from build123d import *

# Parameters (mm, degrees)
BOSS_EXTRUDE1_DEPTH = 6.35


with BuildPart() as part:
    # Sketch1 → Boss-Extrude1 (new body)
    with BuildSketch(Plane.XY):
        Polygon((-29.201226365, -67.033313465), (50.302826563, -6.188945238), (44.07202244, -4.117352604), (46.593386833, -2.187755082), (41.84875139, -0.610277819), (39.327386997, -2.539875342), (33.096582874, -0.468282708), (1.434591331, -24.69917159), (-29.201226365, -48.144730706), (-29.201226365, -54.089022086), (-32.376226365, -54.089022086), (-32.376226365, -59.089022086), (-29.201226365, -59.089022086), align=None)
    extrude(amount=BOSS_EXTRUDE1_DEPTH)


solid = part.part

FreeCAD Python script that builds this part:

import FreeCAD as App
import Part
import Sketcher
Q = App.Units.Quantity

doc = App.newDocument("Part")
body = doc.addObject("PartDesign::Body", "Body")

sketch1 = body.newObject("Sketcher::SketchObject", "Sketch")
sketch1.AttachmentSupport = (doc.getObject("XY_Plane"), [""])
sketch1.MapMode = "FlatFace"
sketch1.addGeometry([
    Part.LineSegment(App.Vector(-29.2, -67, 0), App.Vector(50.3, -6.2, 0)),
    Part.LineSegment(App.Vector(50.3, -6.2, 0), App.Vector(44.1, -4.1, 0)),
    Part.LineSegment(App.Vector(44.1, -4.1, 0), App.Vector(46.6, -2.2, 0)),
    Part.LineSegment(App.Vector(46.6, -2.2, 0), App.Vector(41.8, -0.6, 0)),
    Part.LineSegment(App.Vector(41.8, -0.6, 0), App.Vector(39.3, -2.5, 0)),
    Part.LineSegment(App.Vector(39.3, -2.5, 0), App.Vector(33.1, -0.5, 0)),
    Part.LineSegment(App.Vector(33.1, -0.5, 0), App.Vector(1.4, -24.7, 0)),
    Part.LineSegment(App.Vector(1.4, -24.7, 0), App.Vector(-29.2, -48.1, 0)),
    Part.LineSegment(App.Vector(-29.2, -48.1, 0), App.Vector(-29.2, -54.1, 0)),
    Part.LineSegment(App.Vector(-29.2, -54.1, 0), App.Vector(-32.4, -54.1, 0)),
    Part.LineSegment(App.Vector(-32.4, -54.1, 0), App.Vector(-32.4, -59.1, 0)),
    Part.LineSegment(App.Vector(-32.4, -59.1, 0), App.Vector(-29.2, -59.1, 0)),
    Part.LineSegment(App.Vector(-29.2, -59.1, 0), App.Vector(-29.2, -67, 0)),
], False)
sketch1.addConstraint([
    Sketcher.Constraint("Coincident", 0, 2, 1, 1),
    Sketcher.Constraint("Coincident", 1, 2, 2, 1),
    Sketcher.Constraint("Coincident", 2, 2, 3, 1),
    Sketcher.Constraint("Coincident", 3, 2, 4, 1),
    Sketcher.Constraint("Coincident", 4, 2, 5, 1),
    Sketcher.Constraint("Coincident", 5, 2, 6, 1),
    Sketcher.Constraint("Coincident", 6, 2, 7, 1),
    Sketcher.Constraint("Coincident", 7, 2, 8, 1),
    Sketcher.Constraint("Coincident", 8, 2, 9, 1),
    Sketcher.Constraint("Coincident", 9, 2, 10, 1),
    Sketcher.Constraint("Coincident", 10, 2, 11, 1),
    Sketcher.Constraint("Coincident", 11, 2, 12, 1),
    Sketcher.Constraint("Coincident", 12, 2, 0, 1),
    Sketcher.Constraint("Vertical", 8),
    Sketcher.Constraint("Horizontal", 9),
    Sketcher.Constraint("Vertical", 10),
    Sketcher.Constraint("Horizontal", 11),
    Sketcher.Constraint("Vertical", 12),
    Sketcher.Constraint("Parallel", 0, 2),
    Sketcher.Constraint("Parallel", 1, 3),
    Sketcher.Constraint("Parallel", 2, 4),
    Sketcher.Constraint("Parallel", 3, 5),
    Sketcher.Constraint("Parallel", 4, 6),
    Sketcher.Constraint("Parallel", 6, 7),
    Sketcher.Constraint("Vertical", 8, 2, 11, 2),
    Sketcher.Constraint("Equal", 2, 4),
    Sketcher.Constraint("Equal", 1, 5),
    Sketcher.Constraint("DistanceX", 9, 2, 9, 1, Q("0.125 in")),
    Sketcher.Constraint("Distance", 2, Q("0.125 in")),
    Sketcher.Constraint("DistanceY", 10, 2, 10, 1, Q("5 mm")),
    Sketcher.Constraint("Distance", 3, Q("5 mm")),
    Sketcher.Constraint("DistanceY", 8, 2, 8, 1, Q("5.944291 mm")),
    Sketcher.Constraint("DistanceY", 12, 2, 12, 1, Q("7.944291 mm")),
    Sketcher.Constraint("DistanceX", 4, 2, 2, 2, Q("7.266 mm")),
    Sketcher.Constraint("Distance", 6, Q("39.87001 mm")),
    Sketcher.Constraint("Distance", 7, Q("38.577812 mm")),
    Sketcher.Constraint("DistanceX", -1, 1, 3, 2, Q("41.848751 mm")),
    Sketcher.Constraint("DistanceX", -1, 1, 6, 2, Q("1.434591 mm")),
    Sketcher.Constraint("DistanceY", 6, 2, -1, 1, Q("24.699172 mm")),
])
pad1 = body.newObject("PartDesign::Pad", "Pad")
pad1.Profile = sketch1
pad1.Length = Q("0.25 in")

doc.recompute()
